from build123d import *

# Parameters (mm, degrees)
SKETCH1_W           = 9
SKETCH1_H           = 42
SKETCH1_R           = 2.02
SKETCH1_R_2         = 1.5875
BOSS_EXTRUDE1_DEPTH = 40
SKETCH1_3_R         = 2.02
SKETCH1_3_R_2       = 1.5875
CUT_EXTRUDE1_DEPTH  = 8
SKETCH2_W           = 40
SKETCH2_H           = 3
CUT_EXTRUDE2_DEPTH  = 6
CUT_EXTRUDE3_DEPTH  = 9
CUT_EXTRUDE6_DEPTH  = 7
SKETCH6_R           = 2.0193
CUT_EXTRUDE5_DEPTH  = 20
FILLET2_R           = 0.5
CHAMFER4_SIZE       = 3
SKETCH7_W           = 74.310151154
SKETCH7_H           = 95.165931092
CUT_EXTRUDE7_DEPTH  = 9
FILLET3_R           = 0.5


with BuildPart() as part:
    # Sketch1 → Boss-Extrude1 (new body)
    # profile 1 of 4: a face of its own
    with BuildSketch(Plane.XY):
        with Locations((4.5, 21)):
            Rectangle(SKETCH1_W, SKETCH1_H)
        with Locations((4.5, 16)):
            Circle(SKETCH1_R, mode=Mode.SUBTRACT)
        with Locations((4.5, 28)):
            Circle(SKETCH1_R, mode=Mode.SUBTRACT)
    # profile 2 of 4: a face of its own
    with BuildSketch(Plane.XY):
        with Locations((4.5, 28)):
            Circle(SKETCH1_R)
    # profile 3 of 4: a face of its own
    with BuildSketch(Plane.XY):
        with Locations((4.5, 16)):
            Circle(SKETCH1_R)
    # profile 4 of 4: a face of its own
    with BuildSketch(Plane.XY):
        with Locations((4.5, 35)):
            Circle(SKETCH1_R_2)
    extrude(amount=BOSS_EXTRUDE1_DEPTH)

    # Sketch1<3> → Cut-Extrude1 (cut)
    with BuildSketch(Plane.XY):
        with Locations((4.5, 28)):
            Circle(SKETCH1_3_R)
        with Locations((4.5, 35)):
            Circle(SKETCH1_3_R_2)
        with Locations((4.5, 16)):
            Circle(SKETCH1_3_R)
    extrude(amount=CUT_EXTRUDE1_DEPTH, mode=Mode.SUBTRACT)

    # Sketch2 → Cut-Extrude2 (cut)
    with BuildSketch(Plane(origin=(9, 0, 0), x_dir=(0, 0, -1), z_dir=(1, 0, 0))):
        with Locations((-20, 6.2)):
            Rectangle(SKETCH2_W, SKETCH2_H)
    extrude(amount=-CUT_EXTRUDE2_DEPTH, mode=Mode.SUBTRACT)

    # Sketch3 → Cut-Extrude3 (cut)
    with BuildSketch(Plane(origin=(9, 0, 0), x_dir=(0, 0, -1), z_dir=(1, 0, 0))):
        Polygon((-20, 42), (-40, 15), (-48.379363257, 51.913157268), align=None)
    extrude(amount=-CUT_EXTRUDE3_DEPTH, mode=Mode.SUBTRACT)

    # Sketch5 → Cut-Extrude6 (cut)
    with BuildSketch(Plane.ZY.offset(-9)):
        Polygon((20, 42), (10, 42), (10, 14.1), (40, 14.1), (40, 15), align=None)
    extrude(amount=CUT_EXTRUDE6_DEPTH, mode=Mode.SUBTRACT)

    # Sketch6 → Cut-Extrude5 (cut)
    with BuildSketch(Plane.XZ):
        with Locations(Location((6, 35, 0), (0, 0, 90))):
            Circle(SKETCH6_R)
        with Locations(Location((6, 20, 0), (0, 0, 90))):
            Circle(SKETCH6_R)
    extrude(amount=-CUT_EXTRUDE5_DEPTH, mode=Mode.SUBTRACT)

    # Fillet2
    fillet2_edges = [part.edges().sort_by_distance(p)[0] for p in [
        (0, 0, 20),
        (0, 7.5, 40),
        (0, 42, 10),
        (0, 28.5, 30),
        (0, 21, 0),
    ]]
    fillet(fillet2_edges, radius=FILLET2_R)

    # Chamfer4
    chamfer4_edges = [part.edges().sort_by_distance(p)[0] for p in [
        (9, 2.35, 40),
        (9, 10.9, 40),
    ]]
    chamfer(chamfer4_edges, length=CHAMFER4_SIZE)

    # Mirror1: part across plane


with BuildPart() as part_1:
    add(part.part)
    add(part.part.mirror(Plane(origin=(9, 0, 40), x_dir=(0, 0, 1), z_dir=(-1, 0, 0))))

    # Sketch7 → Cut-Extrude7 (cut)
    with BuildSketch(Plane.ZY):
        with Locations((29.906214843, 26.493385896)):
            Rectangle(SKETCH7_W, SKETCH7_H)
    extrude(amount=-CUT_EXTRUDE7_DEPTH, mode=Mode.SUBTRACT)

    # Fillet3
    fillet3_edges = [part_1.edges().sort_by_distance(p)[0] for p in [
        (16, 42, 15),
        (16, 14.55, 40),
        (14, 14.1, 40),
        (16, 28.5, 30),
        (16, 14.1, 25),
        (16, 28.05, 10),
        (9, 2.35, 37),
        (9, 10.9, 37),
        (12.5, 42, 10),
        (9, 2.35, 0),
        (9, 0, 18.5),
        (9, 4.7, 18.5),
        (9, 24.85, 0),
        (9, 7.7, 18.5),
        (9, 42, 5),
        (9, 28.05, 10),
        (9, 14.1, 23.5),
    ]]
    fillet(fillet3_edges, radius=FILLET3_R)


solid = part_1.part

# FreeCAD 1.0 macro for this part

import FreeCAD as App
import Part
import Sketcher
Q = App.Units.Quantity


def edges_at(feature, points):
    """Names of the edges that pass closest to the given points."""
    edges = feature.Shape.Edges
    near = lambda p: min(range(len(edges)), key=lambda i: edges[i].distToShape(Part.Vertex(*p))[0])
    return sorted({f"Edge{near(p) + 1}" for p in points})

doc = App.newDocument("Part")
body = doc.addObject("PartDesign::Body", "Body")

# Sketch on XY plane
sketch1 = body.newObject("Sketcher::SketchObject", "Sketch")
sketch1.AttachmentSupport = (doc.getObject("XY_Plane"), [""])
sketch1.MapMode = "FlatFace"
sketch1.addGeometry(Part.LineSegment(App.Vector(0, 42, 0), App.Vector(0, 0, 0)), False)
sketch1.addGeometry(Part.LineSegment(App.Vector(0, 0, 0), App.Vector(9, 0, 0)), False)
sketch1.addGeometry(Part.LineSegment(App.Vector(9, 0, 0), App.Vector(9, 42, 0)), False)
sketch1.addGeometry(Part.LineSegment(App.Vector(9, 42, 0), App.Vector(0, 42, 0)), False)
sketch1.addConstraint(Sketcher.Constraint("Coincident", 0, 2, 1, 1))
sketch1.addConstraint(Sketcher.Constraint("Coincident", 1, 2, 2, 1))
sketch1.addConstraint(Sketcher.Constraint("Coincident", 2, 2, 3, 1))
sketch1.addConstraint(Sketcher.Constraint("Coincident", 3, 2, 0, 1))
sketch1.addConstraint(Sketcher.Constraint("Vertical", 0))
sketch1.addConstraint(Sketcher.Constraint("Horizontal", 1))
sketch1.addConstraint(Sketcher.Constraint("Vertical", 2))
sketch1.addConstraint(Sketcher.Constraint("Horizontal", 3))
sketch1.addConstraint(Sketcher.Constraint("Coincident", 0, 2, -1, 1))
sketch1.addConstraint(Sketcher.Constraint("DistanceX", 1, 1, 1, 2, Q("9 mm")))
sketch1.addConstraint(Sketcher.Constraint("DistanceY", 0, 2, 0, 1, Q("42 mm")))
pad1 = body.newObject("PartDesign::Pad", "Pad")
pad1.Profile = sketch1
pad1.Length = 40

# Sketch on XY plane
sketch2 = body.newObject("Sketcher::SketchObject", "Sketch001")
sketch2.AttachmentSupport = (doc.getObject("XY_Plane"), [""])
sketch2.MapMode = "FlatFace"
sketch2.addGeometry(Part.Circle(App.Vector(4.5, 28, 0), App.Vector(0, 0, 1), 2), False)
sketch2.addGeometry(Part.Circle(App.Vector(4.5, 35, 0), App.Vector(0, 0, 1), 1.6), False)
sketch2.addGeometry(Part.Circle(App.Vector(4.5, 16, 0), App.Vector(0, 0, 1), 2), False)
sketch2.addConstraint(Sketcher.Constraint("Equal", 0, 2))
sketch2.addConstraint(Sketcher.Constraint("Vertical", 0, 3, 1, 3))
sketch2.addConstraint(Sketcher.Constraint("Vertical", 1, 3, 2, 3))
sketch2.addConstraint(Sketcher.Constraint("Diameter", 0, Q("4.04 mm")))
sketch2.addConstraint(Sketcher.Constraint("Diameter", 1, Q("3.175 mm")))
sketch2.addConstraint(Sketcher.Constraint("DistanceY", -1, 1, 0, 3, Q("28 mm")))
sketch2.addConstraint(Sketcher.Constraint("DistanceY", -1, 1, 1, 3, Q("35 mm")))
sketch2.addConstraint(Sketcher.Constraint("DistanceY", -1, 1, 2, 3, Q("16 mm")))
sketch2.addConstraint(Sketcher.Constraint("DistanceX", -1, 1, 0, 3, Q("4.5 mm")))
pocket1 = body.newObject("PartDesign::Pocket", "Pocket")
pocket1.Profile = sketch2
pocket1.Length = 8
pocket1.Reversed = True

# Sketch on YZ plane
sketch3 = body.newObject("Sketcher::SketchObject", "Sketch002")
sketch3.AttachmentSupport = (doc.getObject("YZ_Plane"), [""])
sketch3.MapMode = "FlatFace"
sketch3.AttachmentOffset = App.Placement(App.Vector(0, 0, 9), App.Rotation())
sketch3.addGeometry(Part.LineSegment(App.Vector(7.7, 40, 0), App.Vector(4.7, 40, 0)), False)
sketch3.addGeometry(Part.LineSegment(App.Vector(4.7, 40, 0), App.Vector(4.7, 0, 0)), False)
sketch3.addGeometry(Part.LineSegment(App.Vector(4.7, 0, 0), App.Vector(7.7, 0, 0)), False)
sketch3.addGeometry(Part.LineSegment(App.Vector(7.7, 0, 0), App.Vector(7.7, 40, 0)), False)
sketch3.addConstraint(Sketcher.Constraint("Coincident", 0, 2, 1, 1))
sketch3.addConstraint(Sketcher.Constraint("Coincident", 1, 2, 2, 1))
sketch3.addConstraint(Sketcher.Constraint("Coincident", 2, 2, 3, 1))
sketch3.addConstraint(Sketcher.Constraint("Coincident", 3, 2, 0, 1))
sketch3.addConstraint(Sketcher.Constraint("Horizontal", 0))
sketch3.addConstraint(Sketcher.Constraint("Vertical", 1))
sketch3.addConstraint(Sketcher.Constraint("Horizontal", 2))
sketch3.addConstraint(Sketcher.Constraint("Vertical", 3))
sketch3.addConstraint(Sketcher.Constraint("PointOnObject", 1, 2, -1))
sketch3.addConstraint(Sketcher.Constraint("DistanceX", 0, 2, 0, 1, Q("3 mm")))
sketch3.addConstraint(Sketcher.Constraint("DistanceY", 1, 2, 1, 1, Q("40 mm")))
sketch3.addConstraint(Sketcher.Constraint("DistanceX", -1, 1, 0, 2, Q("4.7 mm")))
pocket2 = body.newObject("PartDesign::Pocket", "Pocket001")
pocket2.Profile = sketch3
pocket2.Length = 6

# Sketch on YZ plane
sketch4 = body.newObject("Sketcher::SketchObject", "Sketch003")
sketch4.AttachmentSupport = (doc.getObject("YZ_Plane"), [""])
sketch4.MapMode = "FlatFace"
sketch4.AttachmentOffset = App.Placement(App.Vector(0, 0, 9), App.Rotation())
sketch4.addGeometry(Part.LineSegment(App.Vector(15, 40, 0), App.Vector(42, 20, 0)), False)
sketch4.addGeometry(Part.LineSegment(App.Vector(42, 20, 0), App.Vector(52, 48, 0)), False)
sketch4.addGeometry(Part.LineSegment(App.Vector(52, 48, 0), App.Vector(15, 40, 0)), False)
sketch4.addConstraint(Sketcher.Constraint("Coincident", 0, 2, 1, 1))
sketch4.addConstraint(Sketcher.Constraint("Coincident", 1, 2, 2, 1))
sketch4.addConstraint(Sketcher.Constraint("Coincident", 2, 2, 0, 1))
sketch4.addConstraint(Sketcher.Constraint("DistanceX", -1, 1, 0, 2, Q("42 mm")))
sketch4.addConstraint(Sketcher.Constraint("DistanceY", -1, 1, 0, 2, Q("20 mm")))
sketch4.addConstraint(Sketcher.Constraint("DistanceX", -1, 1, 2, 2, Q("15 mm")))
sketch4.addConstraint(Sketcher.Constraint("DistanceY", -1, 1, 2, 2, Q("40 mm")))
sketch4.addConstraint(Sketcher.Constraint("Distance", 1, Q("30.060921 mm")))
sketch4.addConstraint(Sketcher.Constraint("Distance", 2, Q("37.852277 mm")))
pocket3 = body.newObject("PartDesign::Pocket", "Pocket002")
pocket3.Profile = sketch4
pocket3.Length = 9

# Sketch on YZ plane
sketch5 = body.newObject("Sketcher::SketchObject", "Sketch004")
sketch5.AttachmentSupport = (doc.getObject("YZ_Plane"), [""])
sketch5.MapMode = "FlatFace"
sketch5.AttachmentOffset = App.Placement(App.Vector(0, 0, 9), App.Rotation())
sketch5.addGeometry(Part.LineSegment(App.Vector(42, 20, 0), App.Vector(42, 10, 0)), False)
sketch5.addGeometry(Part.LineSegment(App.Vector(42, 10, 0), App.Vector(14.1, 10, 0)), False)
sketch5.addGeometry(Part.LineSegment(App.Vector(14.1, 10, 0), App.Vector(14.1, 40, 0)), False)
sketch5.addGeometry(Part.LineSegment(App.Vector(14.1, 40, 0), App.Vector(15, 40, 0)), False)
sketch5.addGeometry(Part.LineSegment(App.Vector(15, 40, 0), App.Vector(42, 20, 0)), False)
sketch5.addConstraint(Sketcher.Constraint("Coincident", 0, 2, 1, 1))
sketch5.addConstraint(Sketcher.Constraint("Coincident", 1, 2, 2, 1))
sketch5.addConstraint(Sketcher.Constraint("Coincident", 2, 2, 3, 1))
sketch5.addConstraint(Sketcher.Constraint("Coincident", 3, 2, 4, 1))
sketch5.addConstraint(Sketcher.Constraint("Coincident", 4, 2, 0, 1))
sketch5.addConstraint(Sketcher.Constraint("Vertical", 0))
sketch5.addConstraint(Sketcher.Constraint("Horizontal", 1))
sketch5.addConstraint(Sketcher.Constraint("Vertical", 2))
sketch5.addConstraint(Sketcher.Constraint("Horizontal", 3))
sketch5.addConstraint(Sketcher.Constraint("DistanceY", 0, 2, 0, 1, Q("10 mm")))
sketch5.addConstraint(Sketcher.Constraint("DistanceY", 2, 1, 2, 2, Q("30 mm")))
sketch5.addConstraint(Sketcher.Constraint("DistanceX", 1, 2, 1, 1, Q("27.9 mm")))
sketch5.addConstraint(Sketcher.Constraint("DistanceX", 3, 1, 3, 2, Q("0.9 mm")))
sketch5.addConstraint(Sketcher.Constraint("DistanceX", -1, 1, 0, 2, Q("42 mm")))
sketch5.addConstraint(Sketcher.Constraint("DistanceY", -1, 1, 0, 2, Q("10 mm")))
pocket4 = body.newObject("PartDesign::Pocket", "Pocket003")
pocket4.Profile = sketch5
pocket4.Length = 7

# Sketch on XZ plane
sketch6 = body.newObject("Sketcher::SketchObject", "Sketch005")
sketch6.AttachmentSupport = (doc.getObject("XZ_Plane"), [""])
sketch6.MapMode = "FlatFace"
sketch6.addGeometry(Part.Circle(App.Vector(6, 35, 0), App.Vector(0, 0, 1), 2), False)
sketch6.addGeometry(Part.Circle(App.Vector(6, 20, 0), App.Vector(0, 0, 1), 2), False)
sketch6.addConstraint(Sketcher.Constraint("Equal", 0, 1))
sketch6.addConstraint(Sketcher.Constraint("Vertical", 0, 3, 1, 3))
sketch6.addConstraint(Sketcher.Constraint("DistanceX", -1, 1, 0, 3, Q("6 mm")))
sketch6.addConstraint(Sketcher.Constraint("DistanceY", -1, 1, 0, 3, Q("35 mm")))
sketch6.addConstraint(Sketcher.Constraint("DistanceY", -1, 1, 1, 3, Q("20 mm")))
sketch6.addConstraint(Sketcher.Constraint("Diameter", 0, Q("4.0386 mm")))
pocket5 = body.newObject("PartDesign::Pocket", "Pocket004")
pocket5.Profile = sketch6
pocket5.Length = 20
doc.recompute()

fillet = body.newObject("PartDesign::Fillet", "Fillet")
fillet.Base = (pocket5, edges_at(pocket5, [
    (0, 0, 20),
    (0, 7.5, 40),
    (0, 42, 10),
    (0, 28.5, 30),
    (0, 21, 0),
]))
fillet.Radius = 0.5
doc.recompute()

chamfer = body.newObject("PartDesign::Chamfer", "Chamfer")
chamfer.Base = (fillet, edges_at(fillet, [(9, 2.35, 40), (9, 10.9, 40)]))
chamfer.Size = 3
body2 = doc.addObject("PartDesign::Body", "Body001")
doc.recompute()

body2.BaseFeature = body
doc.recompute()

mirroring = doc.addObject("Part::Mirroring", "Mirroring")
mirroring.Source = body
mirroring.Base = App.Vector(9, 0, 40)
mirroring.Normal = App.Vector(-1, 0, 0)
body3 = doc.addObject("PartDesign::Body", "Body002")
body3.BaseFeature = mirroring
boolean = body2.newObject("PartDesign::Boolean", "Boolean")
boolean.Type = "Fuse"
boolean.addObjects([body3])
doc.recompute()

# Sketch on YZ plane
sketch7 = body2.newObject("Sketcher::SketchObject", "Sketch006")
sketch7.AttachmentSupport = (doc.getObject("YZ_Plane001"), [""])
sketch7.MapMode = "FlatFace"
sketch7.addGeometry(Part.LineSegment(App.Vector(74, -7, 0), App.Vector(-21, -7, 0)), False)
sketch7.addGeometry(Part.LineSegment(App.Vector(-21, -7, 0), App.Vector(-21, 67, 0)), False)
sketch7.addGeometry(Part.LineSegment(App.Vector(-21, 67, 0), App.Vector(74, 67, 0)), False)
sketch7.addGeometry(Part.LineSegment(App.Vector(74, 67, 0), App.Vector(74, -7, 0)), False)
sketch7.addConstraint(Sketcher.Constraint("Coincident", 0, 2, 1, 1))
sketch7.addConstraint(Sketcher.Constraint("Coincident", 1, 2, 2, 1))
sketch7.addConstraint(Sketcher.Constraint("Coincident", 2, 2, 3, 1))
sketch7.addConstraint(Sketcher.Constraint("Coincident", 3, 2, 0, 1))
sketch7.addConstraint(Sketcher.Constraint("Horizontal", 0))
sketch7.addConstraint(Sketcher.Constraint("Vertical", 1))
sketch7.addConstraint(Sketcher.Constraint("Horizontal", 2))
sketch7.addConstraint(Sketcher.Constraint("Vertical", 3))
sketch7.addConstraint(Sketcher.Constraint("DistanceX", 0, 2, 0, 1, Q("95.165931 mm")))
sketch7.addConstraint(Sketcher.Constraint("DistanceY", 1, 1, 1, 2, Q("74.310151 mm")))
sketch7.addConstraint(Sketcher.Constraint("DistanceX", 0, 2, -1, 1, Q("21.08958 mm")))
sketch7.addConstraint(Sketcher.Constraint("DistanceY", 0, 2, -1, 1, Q("7.248861 mm")))
pocket6 = body2.newObject("PartDesign::Pocket", "Pocket005")
pocket6.Profile = sketch7
pocket6.Length = 9
pocket6.Reversed = True
doc.recompute()

fillet2 = body2.newObject("PartDesign::Fillet", "Fillet001")
fillet2.Base = (pocket6, edges_at(pocket6, [
    (16, 42, 15),
    (16, 14.55, 40),
    (14, 14.1, 40),
    (16, 28.5, 30),
    (16, 14.1, 25),
    (16, 28.05, 10),
    (9, 2.35, 37),
    (9, 10.9, 37),
    (12.5, 42, 10),
    (9, 2.35, 0),
    (9, 0, 18.5),
    (9, 4.7, 18.5),
    (9, 24.85, 0),
    (9, 7.7, 18.5),
    (9, 42, 5),
    (9, 28.05, 10),
    (9, 14.1, 23.5),
]))
fillet2.Radius = 0.5
mirroring.Visibility = False

doc.recompute()
